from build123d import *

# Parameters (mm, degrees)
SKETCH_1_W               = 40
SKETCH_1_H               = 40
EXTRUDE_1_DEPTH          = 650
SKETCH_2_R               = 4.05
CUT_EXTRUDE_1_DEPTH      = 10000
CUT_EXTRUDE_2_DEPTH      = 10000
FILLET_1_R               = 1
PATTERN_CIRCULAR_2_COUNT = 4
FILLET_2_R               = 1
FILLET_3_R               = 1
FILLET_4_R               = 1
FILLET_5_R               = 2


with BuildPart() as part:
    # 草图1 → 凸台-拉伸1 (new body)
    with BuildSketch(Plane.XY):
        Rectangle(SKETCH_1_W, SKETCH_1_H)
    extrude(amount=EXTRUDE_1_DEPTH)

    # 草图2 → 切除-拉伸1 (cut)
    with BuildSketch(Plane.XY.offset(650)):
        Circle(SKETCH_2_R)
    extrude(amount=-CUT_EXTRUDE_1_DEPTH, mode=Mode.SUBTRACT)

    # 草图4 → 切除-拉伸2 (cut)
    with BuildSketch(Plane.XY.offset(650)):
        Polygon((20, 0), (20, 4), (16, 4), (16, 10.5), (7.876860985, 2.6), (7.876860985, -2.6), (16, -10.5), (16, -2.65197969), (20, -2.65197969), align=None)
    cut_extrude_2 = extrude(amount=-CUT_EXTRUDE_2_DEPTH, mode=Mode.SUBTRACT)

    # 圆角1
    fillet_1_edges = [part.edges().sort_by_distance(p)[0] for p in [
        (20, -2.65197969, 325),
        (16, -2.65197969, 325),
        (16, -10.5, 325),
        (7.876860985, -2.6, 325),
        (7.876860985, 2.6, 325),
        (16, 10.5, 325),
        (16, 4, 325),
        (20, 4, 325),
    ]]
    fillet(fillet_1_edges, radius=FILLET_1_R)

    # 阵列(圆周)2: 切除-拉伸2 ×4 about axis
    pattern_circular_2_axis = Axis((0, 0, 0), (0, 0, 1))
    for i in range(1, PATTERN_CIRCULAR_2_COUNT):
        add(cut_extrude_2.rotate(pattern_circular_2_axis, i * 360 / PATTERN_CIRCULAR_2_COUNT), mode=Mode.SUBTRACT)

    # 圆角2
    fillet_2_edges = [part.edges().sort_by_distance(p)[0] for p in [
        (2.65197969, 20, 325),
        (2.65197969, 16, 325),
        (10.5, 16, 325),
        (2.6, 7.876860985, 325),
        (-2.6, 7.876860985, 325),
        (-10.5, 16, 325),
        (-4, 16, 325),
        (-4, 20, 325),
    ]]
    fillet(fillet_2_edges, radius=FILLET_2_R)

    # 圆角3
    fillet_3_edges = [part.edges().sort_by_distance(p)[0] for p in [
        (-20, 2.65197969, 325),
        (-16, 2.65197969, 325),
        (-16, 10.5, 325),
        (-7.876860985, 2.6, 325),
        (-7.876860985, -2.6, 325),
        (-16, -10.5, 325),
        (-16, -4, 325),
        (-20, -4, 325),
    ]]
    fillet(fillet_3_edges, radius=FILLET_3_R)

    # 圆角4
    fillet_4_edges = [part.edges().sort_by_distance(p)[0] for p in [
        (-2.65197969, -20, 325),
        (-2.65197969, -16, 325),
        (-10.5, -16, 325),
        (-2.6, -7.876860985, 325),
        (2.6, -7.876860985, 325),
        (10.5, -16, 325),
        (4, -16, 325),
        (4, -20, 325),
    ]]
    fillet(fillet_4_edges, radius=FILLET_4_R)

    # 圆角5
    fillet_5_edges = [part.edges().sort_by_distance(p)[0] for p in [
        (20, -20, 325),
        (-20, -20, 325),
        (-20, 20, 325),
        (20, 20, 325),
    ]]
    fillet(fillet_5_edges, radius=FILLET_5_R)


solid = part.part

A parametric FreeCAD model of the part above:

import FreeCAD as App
import Part
import Sketcher

V = App.Vector
Q = App.Units.Quantity


def edges_at(feature, points):
    """Names of the edges that pass closest to the given points."""
    edges = feature.Shape.Edges
    near = lambda p: min(range(len(edges)), key=lambda i: edges[i].distToShape(Part.Vertex(*p))[0])
    return sorted({f"Edge{near(p) + 1}" for p in points})


def add_polygon(sketch, points):
    """Adds a closed chain of lines whose ends are joined by coincident constraints."""
    first, n = sketch.GeometryCount, len(points)
    for a, b in zip(points, points[1:] + points[:1]):
        sketch.addGeometry(Part.LineSegment(App.Vector(*a, 0), App.Vector(*b, 0)), False)
    for i in range(n):
        sketch.addConstraint(Sketcher.Constraint("Coincident", first + i, 2, first + (i + 1) % n, 1))

doc = App.newDocument("Part")
body = doc.addObject("PartDesign::Body", "Body")

# Sketch on XY plane
sketch1 = body.newObject("Sketcher::SketchObject", "Sketch")
sketch1.AttachmentSupport = (doc.getObject("XY_Plane"), [""])
sketch1.MapMode = "FlatFace"
add_polygon(sketch1, [(-20, 20), (-20, -20), (20, -20), (20, 20)])  # lines 0-3
sketch1.addConstraint([
    Sketcher.Constraint("Vertical", 0),
    Sketcher.Constraint("Horizontal", 1),
    Sketcher.Constraint("Vertical", 2),
    Sketcher.Constraint("Horizontal", 3),
    Sketcher.Constraint("Symmetric", 0, 2, 2, 2, -1, 1),
    Sketcher.Constraint("Equal", 3, 0),
    Sketcher.Constraint("DistanceX", 1, 1, 1, 2, Q("40 mm")),
])
pad1 = body.newObject("PartDesign::Pad", "Pad")
pad1.Profile = sketch1
pad1.Length = 650

# Sketch on XY plane
sketch2 = body.newObject("Sketcher::SketchObject", "Sketch001")
sketch2.AttachmentSupport = (doc.getObject("XY_Plane"), [""])
sketch2.MapMode = "FlatFace"
sketch2.AttachmentOffset = App.Placement(V(0, 0, 650), App.Rotation())
sketch2.addGeometry(Part.Circle(V(0, 0, 0), V(0, 0, 1), 4), False)
sketch2.addConstraint([
    Sketcher.Constraint("Coincident", 0, 3, -1, 1),
    Sketcher.Constraint("Diameter", 0, Q("8.1 mm")),
])
pocket1 = body.newObject("PartDesign::Pocket", "Pocket")
pocket1.Profile = sketch2
pocket1.Length = 10000

# Sketch on XY plane
sketch3 = body.newObject("Sketcher::SketchObject", "Sketch002")
sketch3.AttachmentSupport = (doc.getObject("XY_Plane"), [""])
sketch3.MapMode = "FlatFace"
sketch3.AttachmentOffset = App.Placement(V(0, 0, 650), App.Rotation())
add_polygon(sketch3, [(20, 4), (16, 4), (16, 10.5), (7.9, 2.6), (7.9, -2.6), (16, -10.5), (16, -2.7), (20, -2.7)])  # lines 0-7
sketch3.addConstraint([
    Sketcher.Constraint("Horizontal", 0),
    Sketcher.Constraint("Vertical", 1),
    Sketcher.Constraint("Vertical", 3),
    Sketcher.Constraint("Vertical", 5),
    Sketcher.Constraint("Horizontal", 6),
    Sketcher.Constraint("Vertical", 7),
    Sketcher.Constraint("Symmetric", 1, 2, 4, 2, -1),
    Sketcher.Constraint("Equal", 2, 4),
    Sketcher.Constraint("DistanceX", 0, 2, 0, 1, Q("4 mm")),
    Sketcher.Constraint("DistanceY", 1, 1, 1, 2, Q("6.5 mm")),
    Sketcher.Constraint("DistanceY", 3, 2, 3, 1, Q("5.2 mm")),
    Sketcher.Constraint("DistanceX", -1, 1, 0, 2, Q("16 mm")),
    Sketcher.Constraint("DistanceY", -1, 1, 0, 2, Q("4 mm")),
    Sketcher.Constraint("DistanceY", 5, 1, 5, 2, Q("7.84802 mm")),
    Sketcher.Constraint("Distance", 2, Q("11.331169 mm")),
])
pocket2 = body.newObject("PartDesign::Pocket", "Pocket001")
pocket2.Profile = sketch3
pocket2.Length = 10000
doc.recompute()

fillet = body.newObject("PartDesign::Fillet", "Fillet")
fillet.Base = (pocket2, edges_at(pocket2, [
    (20, -2.652, 325),
    (16, -2.652, 325),
    (16, -10.5, 325),
    (7.877, -2.6, 325),
    (7.877, 2.6, 325),
    (16, 10.5, 325),
    (16, 4, 325),
    (20, 4, 325),
]))
fillet.Radius = 1
doc.recompute()

polarpattern = body.newObject("PartDesign::PolarPattern", "PolarPattern")
polarpattern.Originals = [pocket2]
polarpattern.Axis = (doc.getObject("Z_Axis"), [""])
polarpattern.Angle = 360
polarpattern.Occurrences = 4
body.Tip = polarpattern
doc.recompute()

fillet2 = body.newObject("PartDesign::Fillet", "Fillet001")
fillet2.Base = (polarpattern, edges_at(polarpattern, [
    (2.652, 20, 325),
    (2.652, 16, 325),
    (10.5, 16, 325),
    (2.6, 7.877, 325),
    (-2.6, 7.877, 325),
    (-10.5, 16, 325),
    (-4, 16, 325),
    (-4, 20, 325),
]))
fillet2.Radius = 1
doc.recompute()

fillet3 = body.newObject("PartDesign::Fillet", "Fillet002")
fillet3.Base = (fillet2, edges_at(fillet2, [
    (-20, 2.652, 325),
    (-16, 2.652, 325),
    (-16, 10.5, 325),
    (-7.877, 2.6, 325),
    (-7.877, -2.6, 325),
    (-16, -10.5, 325),
    (-16, -4, 325),
    (-20, -4, 325),
]))
fillet3.Radius = 1
doc.recompute()

fillet4 = body.newObject("PartDesign::Fillet", "Fillet003")
fillet4.Base = (fillet3, edges_at(fillet3, [
    (-2.652, -20, 325),
    (-2.652, -16, 325),
    (-10.5, -16, 325),
    (-2.6, -7.877, 325),
    (2.6, -7.877, 325),
    (10.5, -16, 325),
    (4, -16, 325),
    (4, -20, 325),
]))
fillet4.Radius = 1
doc.recompute()

fillet5 = body.newObject("PartDesign::Fillet", "Fillet004")
fillet5.Base = (fillet4, edges_at(fillet4, [
    (20, -20, 325),
    (-20, -20, 325),
    (-20, 20, 325),
    (20, 20, 325),
]))
fillet5.Radius = 2

doc.recompute()
